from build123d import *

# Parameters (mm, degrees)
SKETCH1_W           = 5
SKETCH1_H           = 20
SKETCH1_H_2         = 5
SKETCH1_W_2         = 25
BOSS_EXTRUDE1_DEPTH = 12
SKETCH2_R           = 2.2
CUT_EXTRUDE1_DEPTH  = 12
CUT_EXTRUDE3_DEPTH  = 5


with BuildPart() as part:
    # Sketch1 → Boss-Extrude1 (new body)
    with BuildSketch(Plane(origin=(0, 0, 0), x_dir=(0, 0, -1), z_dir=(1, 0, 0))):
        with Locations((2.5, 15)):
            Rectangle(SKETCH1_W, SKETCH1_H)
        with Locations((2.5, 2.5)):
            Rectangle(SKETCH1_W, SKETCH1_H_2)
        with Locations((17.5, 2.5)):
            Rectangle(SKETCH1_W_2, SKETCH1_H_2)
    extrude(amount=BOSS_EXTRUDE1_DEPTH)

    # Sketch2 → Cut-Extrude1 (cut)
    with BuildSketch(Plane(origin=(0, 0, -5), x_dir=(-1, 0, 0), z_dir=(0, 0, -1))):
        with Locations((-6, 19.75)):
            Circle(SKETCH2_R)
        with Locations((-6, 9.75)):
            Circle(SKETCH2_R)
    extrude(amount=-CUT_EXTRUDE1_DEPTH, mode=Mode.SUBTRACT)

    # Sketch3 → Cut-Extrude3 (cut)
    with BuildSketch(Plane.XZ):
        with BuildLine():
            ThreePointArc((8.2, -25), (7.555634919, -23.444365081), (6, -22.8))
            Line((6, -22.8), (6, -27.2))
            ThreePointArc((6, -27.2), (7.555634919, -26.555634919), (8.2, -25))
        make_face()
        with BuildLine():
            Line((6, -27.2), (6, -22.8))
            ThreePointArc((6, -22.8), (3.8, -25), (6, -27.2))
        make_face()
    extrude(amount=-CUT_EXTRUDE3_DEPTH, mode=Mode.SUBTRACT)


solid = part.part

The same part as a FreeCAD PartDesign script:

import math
import FreeCAD as App
import Part
import Sketcher

V = App.Vector
Q = App.Units.Quantity

doc = App.newDocument("Part")
body = doc.addObject("PartDesign::Body", "Body")

sketch1 = body.newObject("Sketcher::SketchObject", "Sketch")
sketch1.AttachmentSupport = (doc.getObject("YZ_Plane"), [""])
sketch1.MapMode = "FlatFace"
sketch1.addGeometry(Part.LineSegment(V(25, 0, 0), V(0, 0, 0)), False)
sketch1.addGeometry(Part.LineSegment(V(0, 0, 0), V(0, -30, 0)), False)
sketch1.addGeometry(Part.LineSegment(V(0, -30, 0), V(5, -30, 0)), False)
sketch1.addGeometry(Part.LineSegment(V(5, -30, 0), V(5, -5, 0)), False)
sketch1.addGeometry(Part.LineSegment(V(5, -5, 0), V(25, -5, 0)), False)
sketch1.addGeometry(Part.LineSegment(V(25, -5, 0), V(25, 0, 0)), False)
sketch1.addConstraint(Sketcher.Constraint("Coincident", 0, 2, 1, 1))
sketch1.addConstraint(Sketcher.Constraint("Coincident", 1, 2, 2, 1))
sketch1.addConstraint(Sketcher.Constraint("Coincident", 2, 2, 3, 1))
sketch1.addConstraint(Sketcher.Constraint("Coincident", 3, 2, 4, 1))
sketch1.addConstraint(Sketcher.Constraint("Coincident", 4, 2, 5, 1))
sketch1.addConstraint(Sketcher.Constraint("Coincident", 5, 2, 0, 1))
sketch1.addConstraint(Sketcher.Constraint("Horizontal", 0))
sketch1.addConstraint(Sketcher.Constraint("Vertical", 1))
sketch1.addConstraint(Sketcher.Constraint("Horizontal", 2))
sketch1.addConstraint(Sketcher.Constraint("Vertical", 3))
sketch1.addConstraint(Sketcher.Constraint("Horizontal", 4))
sketch1.addConstraint(Sketcher.Constraint("Vertical", 5))
sketch1.addConstraint(Sketcher.Constraint("Coincident", 0, 2, -1, 1))
sketch1.addConstraint(Sketcher.Constraint("Equal", 0, 3))
sketch1.addConstraint(Sketcher.Constraint("Equal", 2, 5))
sketch1.addConstraint(Sketcher.Constraint("DistanceX", 0, 2, 0, 1, Q("25 mm")))
sketch1.addConstraint(Sketcher.Constraint("DistanceX", 2, 1, 2, 2, Q("5 mm")))
pad1 = body.newObject("PartDesign::Pad", "Pad")
pad1.Profile = sketch1
pad1.Length = 12

sketch2 = body.newObject("Sketcher::SketchObject", "Sketch001")
sketch2.AttachmentSupport = (doc.getObject("XY_Plane"), [""])
sketch2.MapMode = "FlatFace"
sketch2.AttachmentOffset = App.Placement(V(0, 0, -5), App.Rotation())
sketch2.addGeometry(Part.Circle(V(6, 19.8, 0), V(0, 0, 1), 2.2), False)
sketch2.addGeometry(Part.Circle(V(6, 9.8, 0), V(0, 0, 1), 2.2), False)
sketch2.addConstraint(Sketcher.Constraint("Equal", 0, 1))
sketch2.addConstraint(Sketcher.Constraint("Vertical", 0, 3, 1, 3))
sketch2.addConstraint(Sketcher.Constraint("Diameter", 0, Q("4.4 mm")))
sketch2.addConstraint(Sketcher.Constraint("DistanceX", -1, 1, 0, 3, Q("6 mm")))
sketch2.addConstraint(Sketcher.Constraint("DistanceY", 1, 3, 0, 3, Q("10 mm")))
sketch2.addConstraint(Sketcher.Constraint("DistanceY", -1, 1, 0, 3, Q("19.75 mm")))
pocket1 = body.newObject("PartDesign::Pocket", "Pocket")
pocket1.Profile = sketch2
pocket1.Length = 12
pocket1.Reversed = True

sketch3 = body.newObject("Sketcher::SketchObject", "Sketch002")
sketch3.AttachmentSupport = (doc.getObject("XZ_Plane"), [""])
sketch3.MapMode = "FlatFace"
sketch3.addGeometry(Part.ArcOfCircle(Part.Circle(V(6, -25, 0), V(0, 0, 1), 2.2), math.radians(0), math.radians(90)), False)
sketch3.addGeometry(Part.ArcOfCircle(Part.Circle(V(6, -25, 0), V(0, 0, 1), 2.2), math.radians(90), math.radians(270)), False)
sketch3.addGeometry(Part.ArcOfCircle(Part.Circle(V(6, -25, 0), V(0, 0, 1), 2.2), math.radians(-90), math.radians(0)), False)
sketch3.addConstraint(Sketcher.Constraint("Tangent", 0, 2, 1, 1))
sketch3.addConstraint(Sketcher.Constraint("Tangent", 1, 2, 2, 1))
sketch3.addConstraint(Sketcher.Constraint("Tangent", 2, 2, 0, 1))
sketch3.addConstraint(Sketcher.Constraint("Horizontal", 1, 3, 2, 2))
sketch3.addConstraint(Sketcher.Constraint("Vertical", 2, 3, 0, 2))
sketch3.addConstraint(Sketcher.Constraint("Vertical", 0, 2, 1, 2))
sketch3.addConstraint(Sketcher.Constraint("Radius", 0, Q("2.2 mm")))
sketch3.addConstraint(Sketcher.Constraint("DistanceX", -1, 1, 0, 3, Q("6 mm")))
sketch3.addConstraint(Sketcher.Constraint("DistanceY", 0, 3, -1, 1, Q("25 mm")))
pocket2 = body.newObject("PartDesign::Pocket", "Pocket001")
pocket2.Profile = sketch3
pocket2.Length = 5

doc.recompute()
